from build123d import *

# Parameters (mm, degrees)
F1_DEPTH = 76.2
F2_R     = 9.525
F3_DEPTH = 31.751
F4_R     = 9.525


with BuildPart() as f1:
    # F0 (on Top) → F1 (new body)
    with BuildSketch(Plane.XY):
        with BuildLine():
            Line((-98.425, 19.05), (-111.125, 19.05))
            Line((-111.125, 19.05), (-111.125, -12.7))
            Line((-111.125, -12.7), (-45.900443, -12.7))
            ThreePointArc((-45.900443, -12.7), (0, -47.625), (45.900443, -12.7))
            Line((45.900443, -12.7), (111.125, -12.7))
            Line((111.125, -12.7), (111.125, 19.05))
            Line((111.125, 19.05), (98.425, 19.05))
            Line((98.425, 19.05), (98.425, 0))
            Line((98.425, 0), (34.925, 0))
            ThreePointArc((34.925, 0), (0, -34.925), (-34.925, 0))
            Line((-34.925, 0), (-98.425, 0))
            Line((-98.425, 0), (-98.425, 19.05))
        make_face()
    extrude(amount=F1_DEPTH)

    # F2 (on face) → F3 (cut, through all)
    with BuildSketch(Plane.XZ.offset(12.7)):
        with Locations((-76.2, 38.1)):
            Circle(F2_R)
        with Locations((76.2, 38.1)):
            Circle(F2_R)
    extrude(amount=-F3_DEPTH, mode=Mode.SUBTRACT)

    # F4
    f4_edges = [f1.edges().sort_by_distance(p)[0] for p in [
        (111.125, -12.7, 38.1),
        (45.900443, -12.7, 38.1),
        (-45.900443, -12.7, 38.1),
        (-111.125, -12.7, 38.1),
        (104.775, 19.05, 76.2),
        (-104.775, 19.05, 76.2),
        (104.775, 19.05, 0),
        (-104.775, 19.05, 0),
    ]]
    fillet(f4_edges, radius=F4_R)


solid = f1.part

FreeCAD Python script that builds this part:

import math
import FreeCAD as App
import Part
import Sketcher
from FreeCAD import Vector
Q = App.Units.Quantity


def edges_at(feature, points):
    """Names of the edges that pass closest to the given points."""
    edges = feature.Shape.Edges
    near = lambda p: min(range(len(edges)), key=lambda i: edges[i].distToShape(Part.Vertex(*p))[0])
    return sorted({f"Edge{near(p) + 1}" for p in points})

doc = App.newDocument("Part")
body = doc.addObject("PartDesign::Body", "Body")

sketch1 = body.newObject("Sketcher::SketchObject", "Sketch")
sketch1.AttachmentSupport = (doc.getObject("XY_Plane"), [""])
sketch1.MapMode = "FlatFace"
sketch1.addGeometry([
    Part.LineSegment(Vector(-98, 19, 0), Vector(-111, 19, 0)),
    Part.LineSegment(Vector(-111, 19, 0), Vector(-111, -13, 0)),
    Part.LineSegment(Vector(-111, -13, 0), Vector(-46, -13, 0)),
    Part.ArcOfCircle(Part.Circle(Vector(0, 0, 0), Vector(0, 0, 1), 48), math.radians(-165), math.radians(-15)),
    Part.LineSegment(Vector(46, -13, 0), Vector(111, -13, 0)),
    Part.LineSegment(Vector(111, -13, 0), Vector(111, 19, 0)),
    Part.LineSegment(Vector(111, 19, 0), Vector(98, 19, 0)),
    Part.LineSegment(Vector(98, 19, 0), Vector(98, 0, 0)),
    Part.LineSegment(Vector(98, 0, 0), Vector(35, 0, 0)),
    Part.ArcOfCircle(Part.Circle(Vector(0, 0, 0), Vector(0, 0, 1), 35), math.radians(180), math.radians(360)),
    Part.LineSegment(Vector(-35, 0, 0), Vector(-98, 0, 0)),
    Part.LineSegment(Vector(-98, 0, 0), Vector(-98, 19, 0)),
], False)
sketch1.addConstraint([
    Sketcher.Constraint("Coincident", 0, 2, 1, 1),
    Sketcher.Constraint("Coincident", 1, 2, 2, 1),
    Sketcher.Constraint("Coincident", 2, 2, 3, 1),
    Sketcher.Constraint("Coincident", 3, 2, 4, 1),
    Sketcher.Constraint("Coincident", 4, 2, 5, 1),
    Sketcher.Constraint("Coincident", 5, 2, 6, 1),
    Sketcher.Constraint("Coincident", 6, 2, 7, 1),
    Sketcher.Constraint("Coincident", 7, 2, 8, 1),
    Sketcher.Constraint("Coincident", 8, 2, 9, 2),
    Sketcher.Constraint("Coincident", 9, 1, 10, 1),
    Sketcher.Constraint("Coincident", 10, 2, 11, 1),
    Sketcher.Constraint("Coincident", 11, 2, 0, 1),
    Sketcher.Constraint("Horizontal", 0),
    Sketcher.Constraint("Vertical", 1),
    Sketcher.Constraint("Horizontal", 2),
    Sketcher.Constraint("Horizontal", 4),
    Sketcher.Constraint("Vertical", 5),
    Sketcher.Constraint("Horizontal", 6),
    Sketcher.Constraint("Vertical", 7),
    Sketcher.Constraint("Horizontal", 8),
    Sketcher.Constraint("Horizontal", 10),
    Sketcher.Constraint("Vertical", 11),
    Sketcher.Constraint("Coincident", 3, 3, -1, 1),
    Sketcher.Constraint("Coincident", 9, 3, -1, 1),
    Sketcher.Constraint("Symmetric", 7, 2, 10, 2, -1, 1),
    Sketcher.Constraint("Symmetric", 1, 2, 4, 2, -2),
    Sketcher.Constraint("PointOnObject", 7, 2, -1),
    Sketcher.Constraint("Horizontal", 0, 2, 5, 2),
    Sketcher.Constraint("DistanceX", 0, 2, 0, 1, Q("0.5 in")),
    Sketcher.Constraint("DistanceX", 8, 2, 8, 1, Q("2.5 in")),
    Sketcher.Constraint("Radius", 3, Q("1.875 in")),
    Sketcher.Constraint("Radius", 9, Q("1.375 in")),
    Sketcher.Constraint("DistanceY", 1, 2, 1, 1, Q("1.25 in")),
    Sketcher.Constraint("DistanceY", 7, 2, 7, 1, Q("0.75 in")),
])
pad1 = body.newObject("PartDesign::Pad", "Pad")
pad1.Profile = sketch1
pad1.Length = Q("3 in")

sketch2 = body.newObject("Sketcher::SketchObject", "Sketch001")
sketch2.AttachmentSupport = (doc.getObject("XZ_Plane"), [""])
sketch2.MapMode = "FlatFace"
sketch2.AttachmentOffset = App.Placement(Vector(0, 0, 0.5 * 25.4), App.Rotation())
sketch2.addGeometry([
    Part.Circle(Vector(-76, 38, 0), Vector(0, 0, 1), 10),
    Part.Circle(Vector(76, 38, 0), Vector(0, 0, 1), 10),
], False)
sketch2.addConstraint([
    Sketcher.Constraint("Equal", 0, 1),
    Sketcher.Constraint("Symmetric", 0, 3, 1, 3, -2),
    Sketcher.Constraint("Diameter", 0, Q("0.75 in")),
    Sketcher.Constraint("DistanceX", 0, 3, -1, 1, Q("3 in")),
    Sketcher.Constraint("DistanceY", -1, 1, 0, 3, Q("1.5 in")),
])
pocket1 = body.newObject("PartDesign::Pocket", "Pocket")
pocket1.Profile = sketch2
pocket1.Type = "ThroughAll"
doc.recompute()

fillet = body.newObject("PartDesign::Fillet", "Fillet")
fillet.Base = (pocket1, edges_at(pocket1, [
    (111.125, -12.7, 38.1),
    (45.9, -12.7, 38.1),
    (-45.9, -12.7, 38.1),
    (-111.125, -12.7, 38.1),
    (104.775, 19.05, 76.2),
    (-104.775, 19.05, 76.2),
    (104.775, 19.05, 0),
    (-104.775, 19.05, 0),
]))
fillet.Radius = Q("0.375 in")

doc.recompute()
